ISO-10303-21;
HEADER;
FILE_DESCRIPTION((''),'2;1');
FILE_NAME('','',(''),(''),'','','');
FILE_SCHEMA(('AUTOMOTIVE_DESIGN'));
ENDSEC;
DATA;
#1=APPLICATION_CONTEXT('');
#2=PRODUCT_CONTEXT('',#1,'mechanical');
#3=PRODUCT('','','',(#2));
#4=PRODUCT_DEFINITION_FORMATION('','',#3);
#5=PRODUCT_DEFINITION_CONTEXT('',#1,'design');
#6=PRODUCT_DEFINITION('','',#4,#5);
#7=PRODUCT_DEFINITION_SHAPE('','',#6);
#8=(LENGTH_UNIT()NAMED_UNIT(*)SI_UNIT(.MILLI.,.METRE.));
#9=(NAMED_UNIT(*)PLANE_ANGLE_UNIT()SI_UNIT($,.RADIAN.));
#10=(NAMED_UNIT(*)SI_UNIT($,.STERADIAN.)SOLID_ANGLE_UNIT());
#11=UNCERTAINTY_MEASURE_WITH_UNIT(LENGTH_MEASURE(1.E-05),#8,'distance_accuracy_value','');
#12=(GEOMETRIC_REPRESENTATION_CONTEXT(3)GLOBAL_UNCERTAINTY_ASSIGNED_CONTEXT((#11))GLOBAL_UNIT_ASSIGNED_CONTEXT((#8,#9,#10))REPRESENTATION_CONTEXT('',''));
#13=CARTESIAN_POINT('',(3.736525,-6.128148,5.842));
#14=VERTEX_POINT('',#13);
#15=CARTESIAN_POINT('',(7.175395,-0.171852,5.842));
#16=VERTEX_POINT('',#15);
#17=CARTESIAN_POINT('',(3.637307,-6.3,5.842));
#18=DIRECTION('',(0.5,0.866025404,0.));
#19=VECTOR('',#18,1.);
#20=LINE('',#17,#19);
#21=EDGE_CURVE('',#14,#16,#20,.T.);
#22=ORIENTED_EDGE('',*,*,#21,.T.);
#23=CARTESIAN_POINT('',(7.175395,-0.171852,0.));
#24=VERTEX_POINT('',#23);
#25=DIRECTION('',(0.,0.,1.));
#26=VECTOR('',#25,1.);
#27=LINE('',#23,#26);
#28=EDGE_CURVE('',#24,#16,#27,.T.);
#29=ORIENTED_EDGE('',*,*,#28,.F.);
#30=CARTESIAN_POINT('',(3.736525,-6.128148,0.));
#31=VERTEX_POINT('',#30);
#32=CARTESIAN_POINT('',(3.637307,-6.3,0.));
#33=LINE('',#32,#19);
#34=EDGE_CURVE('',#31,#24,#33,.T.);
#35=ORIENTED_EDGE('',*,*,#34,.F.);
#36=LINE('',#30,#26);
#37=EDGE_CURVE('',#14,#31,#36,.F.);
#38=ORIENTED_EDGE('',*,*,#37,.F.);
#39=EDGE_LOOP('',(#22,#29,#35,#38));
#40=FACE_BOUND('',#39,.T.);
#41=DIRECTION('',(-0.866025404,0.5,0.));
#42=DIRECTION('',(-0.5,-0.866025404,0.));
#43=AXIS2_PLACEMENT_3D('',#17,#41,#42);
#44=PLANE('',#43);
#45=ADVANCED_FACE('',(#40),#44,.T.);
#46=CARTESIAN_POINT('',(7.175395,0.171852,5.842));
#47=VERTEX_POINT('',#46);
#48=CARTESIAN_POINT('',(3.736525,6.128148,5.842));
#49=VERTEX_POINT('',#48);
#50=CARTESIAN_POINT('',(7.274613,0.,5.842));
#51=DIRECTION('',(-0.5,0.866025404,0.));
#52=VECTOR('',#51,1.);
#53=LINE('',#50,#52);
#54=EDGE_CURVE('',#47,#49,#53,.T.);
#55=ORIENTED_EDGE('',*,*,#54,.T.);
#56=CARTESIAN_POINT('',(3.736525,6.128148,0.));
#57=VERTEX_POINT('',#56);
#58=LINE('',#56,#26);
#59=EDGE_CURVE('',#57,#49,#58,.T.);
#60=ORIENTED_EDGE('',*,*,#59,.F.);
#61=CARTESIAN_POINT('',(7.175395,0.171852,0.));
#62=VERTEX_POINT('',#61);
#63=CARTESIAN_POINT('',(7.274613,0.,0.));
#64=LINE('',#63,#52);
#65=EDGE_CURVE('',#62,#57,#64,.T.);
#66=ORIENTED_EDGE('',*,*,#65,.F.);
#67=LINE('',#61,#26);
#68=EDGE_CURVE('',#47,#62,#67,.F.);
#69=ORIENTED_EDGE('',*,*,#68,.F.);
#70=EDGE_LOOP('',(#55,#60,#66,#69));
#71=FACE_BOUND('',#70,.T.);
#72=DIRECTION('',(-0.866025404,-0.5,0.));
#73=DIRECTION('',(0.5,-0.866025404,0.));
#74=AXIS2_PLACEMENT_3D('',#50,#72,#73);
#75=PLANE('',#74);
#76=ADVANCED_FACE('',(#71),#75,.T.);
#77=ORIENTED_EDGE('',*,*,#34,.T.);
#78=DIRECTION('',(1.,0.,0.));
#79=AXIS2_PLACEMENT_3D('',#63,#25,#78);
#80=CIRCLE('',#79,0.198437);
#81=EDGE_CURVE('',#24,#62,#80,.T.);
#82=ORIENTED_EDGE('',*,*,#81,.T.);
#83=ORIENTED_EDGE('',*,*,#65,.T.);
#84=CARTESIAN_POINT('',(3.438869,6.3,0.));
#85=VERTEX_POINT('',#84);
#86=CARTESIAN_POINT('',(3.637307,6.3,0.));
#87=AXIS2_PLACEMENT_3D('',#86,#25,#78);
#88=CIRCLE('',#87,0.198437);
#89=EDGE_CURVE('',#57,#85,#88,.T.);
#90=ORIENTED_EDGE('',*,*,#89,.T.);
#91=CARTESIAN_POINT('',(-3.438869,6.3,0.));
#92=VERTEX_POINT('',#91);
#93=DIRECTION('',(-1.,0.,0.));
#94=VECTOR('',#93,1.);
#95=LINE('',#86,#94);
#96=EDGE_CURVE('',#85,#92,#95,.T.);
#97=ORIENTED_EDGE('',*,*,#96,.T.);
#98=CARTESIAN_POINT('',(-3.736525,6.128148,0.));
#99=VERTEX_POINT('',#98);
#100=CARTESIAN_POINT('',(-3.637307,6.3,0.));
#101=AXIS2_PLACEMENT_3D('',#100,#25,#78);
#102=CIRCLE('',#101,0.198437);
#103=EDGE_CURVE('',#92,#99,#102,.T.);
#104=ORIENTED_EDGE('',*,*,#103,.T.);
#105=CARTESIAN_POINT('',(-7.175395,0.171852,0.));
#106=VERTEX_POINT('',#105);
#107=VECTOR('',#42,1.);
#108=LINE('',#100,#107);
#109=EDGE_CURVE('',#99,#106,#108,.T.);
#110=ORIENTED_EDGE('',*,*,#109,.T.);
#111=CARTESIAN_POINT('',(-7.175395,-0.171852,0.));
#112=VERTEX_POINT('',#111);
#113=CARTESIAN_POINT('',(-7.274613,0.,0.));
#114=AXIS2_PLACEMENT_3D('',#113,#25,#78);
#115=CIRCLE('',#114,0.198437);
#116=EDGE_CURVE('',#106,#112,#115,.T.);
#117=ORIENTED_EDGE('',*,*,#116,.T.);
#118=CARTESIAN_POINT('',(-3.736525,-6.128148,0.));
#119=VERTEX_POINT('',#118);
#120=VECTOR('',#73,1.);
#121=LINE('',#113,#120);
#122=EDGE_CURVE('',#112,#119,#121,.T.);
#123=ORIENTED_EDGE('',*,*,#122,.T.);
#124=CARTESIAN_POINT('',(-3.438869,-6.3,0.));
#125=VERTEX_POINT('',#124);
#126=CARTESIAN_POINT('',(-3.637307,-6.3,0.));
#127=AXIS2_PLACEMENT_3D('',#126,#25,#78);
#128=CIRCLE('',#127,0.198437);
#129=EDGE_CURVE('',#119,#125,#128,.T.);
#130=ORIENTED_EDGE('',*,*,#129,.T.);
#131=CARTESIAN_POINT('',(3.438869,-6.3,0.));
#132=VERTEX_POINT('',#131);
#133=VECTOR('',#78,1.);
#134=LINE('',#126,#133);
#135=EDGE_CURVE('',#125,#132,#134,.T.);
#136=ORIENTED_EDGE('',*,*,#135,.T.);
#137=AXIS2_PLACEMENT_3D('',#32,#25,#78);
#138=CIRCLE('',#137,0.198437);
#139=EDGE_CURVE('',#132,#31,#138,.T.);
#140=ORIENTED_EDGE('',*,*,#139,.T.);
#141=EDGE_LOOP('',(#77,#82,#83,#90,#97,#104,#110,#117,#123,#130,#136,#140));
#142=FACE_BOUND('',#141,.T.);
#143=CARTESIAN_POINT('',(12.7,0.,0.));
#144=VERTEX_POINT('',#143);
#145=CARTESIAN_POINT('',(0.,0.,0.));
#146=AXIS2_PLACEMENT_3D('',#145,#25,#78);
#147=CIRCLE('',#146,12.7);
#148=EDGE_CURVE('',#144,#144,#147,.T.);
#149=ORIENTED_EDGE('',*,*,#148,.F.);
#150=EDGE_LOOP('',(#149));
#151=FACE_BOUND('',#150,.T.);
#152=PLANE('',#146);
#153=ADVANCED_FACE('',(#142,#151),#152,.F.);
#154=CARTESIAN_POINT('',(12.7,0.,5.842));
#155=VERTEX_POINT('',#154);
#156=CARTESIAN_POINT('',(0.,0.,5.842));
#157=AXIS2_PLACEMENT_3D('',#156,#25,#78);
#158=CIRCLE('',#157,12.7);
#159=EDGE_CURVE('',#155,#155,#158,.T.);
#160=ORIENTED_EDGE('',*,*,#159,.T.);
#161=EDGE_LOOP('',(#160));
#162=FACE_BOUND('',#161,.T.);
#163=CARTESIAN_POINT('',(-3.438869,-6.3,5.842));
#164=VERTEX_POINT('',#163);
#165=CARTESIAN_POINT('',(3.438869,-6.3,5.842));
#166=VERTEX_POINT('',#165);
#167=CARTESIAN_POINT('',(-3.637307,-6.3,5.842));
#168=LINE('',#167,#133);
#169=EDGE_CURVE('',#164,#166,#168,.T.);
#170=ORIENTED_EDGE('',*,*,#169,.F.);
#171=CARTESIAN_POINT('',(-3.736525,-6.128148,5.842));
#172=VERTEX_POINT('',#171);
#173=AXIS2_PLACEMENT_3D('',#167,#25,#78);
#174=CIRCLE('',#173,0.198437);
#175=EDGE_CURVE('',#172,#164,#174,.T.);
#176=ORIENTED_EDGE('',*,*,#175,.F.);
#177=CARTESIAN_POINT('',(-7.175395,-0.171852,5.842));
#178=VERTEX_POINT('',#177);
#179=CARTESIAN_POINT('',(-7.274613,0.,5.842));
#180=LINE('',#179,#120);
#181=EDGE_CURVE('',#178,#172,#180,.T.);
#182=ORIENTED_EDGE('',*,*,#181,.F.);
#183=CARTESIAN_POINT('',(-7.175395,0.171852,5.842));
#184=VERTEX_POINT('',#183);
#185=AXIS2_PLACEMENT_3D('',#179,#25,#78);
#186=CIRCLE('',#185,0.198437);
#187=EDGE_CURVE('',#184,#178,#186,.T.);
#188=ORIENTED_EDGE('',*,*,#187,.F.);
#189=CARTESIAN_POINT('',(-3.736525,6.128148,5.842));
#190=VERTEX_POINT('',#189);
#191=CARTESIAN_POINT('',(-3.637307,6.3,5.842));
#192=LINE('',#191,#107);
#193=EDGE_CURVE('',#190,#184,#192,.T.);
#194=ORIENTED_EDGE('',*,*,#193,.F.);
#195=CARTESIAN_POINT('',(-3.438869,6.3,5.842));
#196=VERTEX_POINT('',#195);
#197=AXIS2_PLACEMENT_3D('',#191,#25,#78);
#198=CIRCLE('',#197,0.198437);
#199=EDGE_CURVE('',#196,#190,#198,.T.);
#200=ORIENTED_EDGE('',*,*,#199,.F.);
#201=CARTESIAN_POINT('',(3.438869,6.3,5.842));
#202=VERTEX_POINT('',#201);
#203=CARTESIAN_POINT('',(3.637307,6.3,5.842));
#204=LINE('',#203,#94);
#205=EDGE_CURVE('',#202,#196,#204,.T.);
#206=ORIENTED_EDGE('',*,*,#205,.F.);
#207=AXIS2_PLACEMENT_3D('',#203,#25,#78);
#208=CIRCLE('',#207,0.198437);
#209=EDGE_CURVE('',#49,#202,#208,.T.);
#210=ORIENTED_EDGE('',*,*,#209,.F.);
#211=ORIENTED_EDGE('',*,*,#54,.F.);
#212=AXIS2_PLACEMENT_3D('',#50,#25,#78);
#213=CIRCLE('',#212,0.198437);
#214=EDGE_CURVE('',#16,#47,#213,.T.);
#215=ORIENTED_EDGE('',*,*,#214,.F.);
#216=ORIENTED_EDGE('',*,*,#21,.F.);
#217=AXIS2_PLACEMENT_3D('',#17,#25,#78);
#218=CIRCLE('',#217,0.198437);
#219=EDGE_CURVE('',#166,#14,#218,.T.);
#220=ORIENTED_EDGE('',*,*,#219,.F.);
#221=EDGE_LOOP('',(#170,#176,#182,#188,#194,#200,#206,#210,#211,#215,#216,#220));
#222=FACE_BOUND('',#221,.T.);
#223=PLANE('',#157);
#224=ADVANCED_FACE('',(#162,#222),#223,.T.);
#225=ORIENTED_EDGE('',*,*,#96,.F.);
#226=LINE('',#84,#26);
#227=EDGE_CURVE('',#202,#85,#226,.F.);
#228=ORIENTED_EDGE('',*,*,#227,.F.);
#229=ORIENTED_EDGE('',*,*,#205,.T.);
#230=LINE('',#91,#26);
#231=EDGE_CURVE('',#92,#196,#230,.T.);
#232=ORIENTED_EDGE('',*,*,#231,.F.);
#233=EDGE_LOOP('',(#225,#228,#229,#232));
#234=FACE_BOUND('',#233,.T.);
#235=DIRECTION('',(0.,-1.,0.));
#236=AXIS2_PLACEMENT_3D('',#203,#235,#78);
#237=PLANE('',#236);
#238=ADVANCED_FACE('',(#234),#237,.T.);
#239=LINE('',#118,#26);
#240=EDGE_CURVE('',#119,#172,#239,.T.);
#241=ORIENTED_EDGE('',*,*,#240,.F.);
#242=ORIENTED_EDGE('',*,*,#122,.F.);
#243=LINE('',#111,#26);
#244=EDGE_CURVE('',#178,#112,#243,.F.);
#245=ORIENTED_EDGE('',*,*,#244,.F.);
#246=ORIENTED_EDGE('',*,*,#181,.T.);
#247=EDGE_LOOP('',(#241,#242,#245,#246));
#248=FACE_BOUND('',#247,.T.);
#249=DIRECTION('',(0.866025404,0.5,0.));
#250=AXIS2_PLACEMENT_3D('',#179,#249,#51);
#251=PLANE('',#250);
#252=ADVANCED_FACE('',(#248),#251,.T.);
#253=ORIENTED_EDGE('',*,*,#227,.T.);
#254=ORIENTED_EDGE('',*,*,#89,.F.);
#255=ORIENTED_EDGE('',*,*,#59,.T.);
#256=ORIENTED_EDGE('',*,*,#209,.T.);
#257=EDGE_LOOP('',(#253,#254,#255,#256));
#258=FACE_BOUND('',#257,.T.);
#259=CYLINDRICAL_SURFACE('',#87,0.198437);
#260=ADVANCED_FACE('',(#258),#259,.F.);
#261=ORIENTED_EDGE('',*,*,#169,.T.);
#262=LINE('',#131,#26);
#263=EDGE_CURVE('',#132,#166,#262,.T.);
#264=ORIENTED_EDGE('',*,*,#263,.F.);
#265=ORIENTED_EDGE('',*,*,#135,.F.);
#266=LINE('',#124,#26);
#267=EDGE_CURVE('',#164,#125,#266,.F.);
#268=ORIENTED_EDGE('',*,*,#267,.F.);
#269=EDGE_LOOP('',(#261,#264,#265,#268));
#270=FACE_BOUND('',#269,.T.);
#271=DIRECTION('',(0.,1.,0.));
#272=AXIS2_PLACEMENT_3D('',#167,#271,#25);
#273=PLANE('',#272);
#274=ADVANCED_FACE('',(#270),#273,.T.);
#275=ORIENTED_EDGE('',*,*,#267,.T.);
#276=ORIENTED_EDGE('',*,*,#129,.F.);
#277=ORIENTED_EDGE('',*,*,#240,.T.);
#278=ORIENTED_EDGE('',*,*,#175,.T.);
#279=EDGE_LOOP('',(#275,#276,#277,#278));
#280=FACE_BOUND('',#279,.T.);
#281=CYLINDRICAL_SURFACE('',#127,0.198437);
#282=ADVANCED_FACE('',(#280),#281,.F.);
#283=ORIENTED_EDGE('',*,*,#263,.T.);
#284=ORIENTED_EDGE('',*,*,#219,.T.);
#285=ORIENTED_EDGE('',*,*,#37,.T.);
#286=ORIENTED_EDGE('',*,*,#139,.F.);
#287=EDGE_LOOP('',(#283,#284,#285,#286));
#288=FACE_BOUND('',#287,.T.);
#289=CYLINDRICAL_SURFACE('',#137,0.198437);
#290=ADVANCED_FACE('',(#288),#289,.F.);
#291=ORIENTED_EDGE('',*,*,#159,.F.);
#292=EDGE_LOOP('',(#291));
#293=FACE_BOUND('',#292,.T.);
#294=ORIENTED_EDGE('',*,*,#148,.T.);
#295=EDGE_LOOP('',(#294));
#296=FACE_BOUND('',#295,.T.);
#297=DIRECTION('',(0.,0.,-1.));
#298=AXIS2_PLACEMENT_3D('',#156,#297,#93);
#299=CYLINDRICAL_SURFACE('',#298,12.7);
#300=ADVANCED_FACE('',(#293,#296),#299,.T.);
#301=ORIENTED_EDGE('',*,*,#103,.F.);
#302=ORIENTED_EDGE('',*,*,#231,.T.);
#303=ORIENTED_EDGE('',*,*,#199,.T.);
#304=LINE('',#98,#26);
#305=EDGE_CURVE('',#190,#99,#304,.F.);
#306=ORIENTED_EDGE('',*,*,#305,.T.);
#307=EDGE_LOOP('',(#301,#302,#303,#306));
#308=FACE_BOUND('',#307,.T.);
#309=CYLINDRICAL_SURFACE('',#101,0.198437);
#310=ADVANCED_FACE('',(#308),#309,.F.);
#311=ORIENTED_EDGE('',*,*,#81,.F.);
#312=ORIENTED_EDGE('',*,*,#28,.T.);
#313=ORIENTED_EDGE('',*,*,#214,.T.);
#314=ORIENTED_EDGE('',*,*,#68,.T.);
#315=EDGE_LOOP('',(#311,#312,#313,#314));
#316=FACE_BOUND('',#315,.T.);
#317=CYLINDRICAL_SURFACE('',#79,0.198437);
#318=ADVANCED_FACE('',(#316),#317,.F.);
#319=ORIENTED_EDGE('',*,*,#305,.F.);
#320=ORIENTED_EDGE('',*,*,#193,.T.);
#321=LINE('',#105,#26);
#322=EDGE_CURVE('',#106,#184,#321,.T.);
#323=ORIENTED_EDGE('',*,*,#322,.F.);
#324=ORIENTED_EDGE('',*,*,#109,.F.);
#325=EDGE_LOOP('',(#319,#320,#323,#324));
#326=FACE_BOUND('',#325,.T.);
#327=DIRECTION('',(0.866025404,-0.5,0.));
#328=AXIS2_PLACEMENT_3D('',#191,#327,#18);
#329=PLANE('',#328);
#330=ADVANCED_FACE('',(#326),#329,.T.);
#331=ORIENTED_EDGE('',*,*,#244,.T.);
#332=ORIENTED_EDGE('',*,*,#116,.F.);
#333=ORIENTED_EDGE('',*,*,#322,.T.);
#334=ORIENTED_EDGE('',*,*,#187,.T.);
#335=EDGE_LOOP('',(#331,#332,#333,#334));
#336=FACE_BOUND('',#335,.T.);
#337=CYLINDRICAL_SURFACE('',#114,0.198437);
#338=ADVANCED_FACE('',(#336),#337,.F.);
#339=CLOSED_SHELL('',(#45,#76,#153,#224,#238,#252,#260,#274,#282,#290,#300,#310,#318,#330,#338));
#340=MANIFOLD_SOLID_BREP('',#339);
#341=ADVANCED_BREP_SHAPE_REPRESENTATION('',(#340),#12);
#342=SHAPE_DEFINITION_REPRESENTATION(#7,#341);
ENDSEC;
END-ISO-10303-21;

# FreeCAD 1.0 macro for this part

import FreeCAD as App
import Part
import Sketcher

V = App.Vector
Q = App.Units.Quantity

doc = App.newDocument("Part")
body = doc.addObject("PartDesign::Body", "Body")

# Sketch on XY plane
sketch1 = doc.addObject("Sketcher::SketchObject", "Sketch")
body.addObject(sketch1)
sketch1.AttachmentSupport = (doc.XY_Plane, [""])
sketch1.MapMode = "FlatFace"
sketch1.addGeometry([
    Part.Circle(V(0, 0, 0), V(0, 0, 1), 13),  # 0
    Part.LineSegment(V(-4, -6, 0), V(-7, 0, 0)),  # 1
    Part.LineSegment(V(-7, 0, 0), V(-4, 6, 0)),  # 2
    Part.LineSegment(V(-4, 6, 0), V(4, 6, 0)),  # 3
    Part.LineSegment(V(4, 6, 0), V(7, 0, 0)),  # 4
    Part.LineSegment(V(7, 0, 0), V(4, -6, 0)),  # 5
    Part.LineSegment(V(4, -6, 0), V(-4, -6, 0)),  # 6
], False)
sketch1.addConstraint([
    Sketcher.Constraint("Coincident", 1, 2, 2, 1),
    Sketcher.Constraint("Coincident", 2, 2, 3, 1),
    Sketcher.Constraint("Coincident", 3, 2, 4, 1),
    Sketcher.Constraint("Coincident", 4, 2, 5, 1),
    Sketcher.Constraint("Coincident", 5, 2, 6, 1),
    Sketcher.Constraint("Coincident", 6, 2, 1, 1),
    Sketcher.Constraint("Horizontal", 3),
    Sketcher.Constraint("Horizontal", 6),
    Sketcher.Constraint("Coincident", 0, 3, -1, 1),
    Sketcher.Constraint("Symmetric", 1, 2, 4, 2, -1, 1),
    Sketcher.Constraint("Symmetric", 2, 2, 5, 2, -1, 1),
    Sketcher.Constraint("PointOnObject", 1, 2, -1),
    Sketcher.Constraint("Parallel", 1, 4),
    Sketcher.Constraint("Vertical", 3, 2, 5, 2),
    Sketcher.Constraint("Diameter", 0, Q("1 in")),
    Sketcher.Constraint("Angle", 1, Q("120 deg")),
    Sketcher.Constraint("DistanceY", -1, 1, 2, 2, Q("6.3 mm")),
    Sketcher.Constraint("DistanceX", 3, 1, 3, 2, Q("7.274613 mm")),
])
pad1 = doc.addObject("PartDesign::Pad", "Pad")
body.addObject(pad1)
pad1.Profile = sketch1
pad1.Length = Q("0.23 in")

# Sketch on XY plane
sketch2 = doc.addObject("Sketcher::SketchObject", "Sketch001")
body.addObject(sketch2)
sketch2.AttachmentSupport = (doc.XY_Plane, [""])
sketch2.MapMode = "FlatFace"
sketch2.AttachmentOffset = App.Placement(V(0, 0, 0.23 * 25.4), App.Rotation())
sketch2.addGeometry([
    Part.Circle(V(3.64, 6.3, 0), V(0, 0, 1), 0.2),  # 0
    Part.Circle(V(-3.64, 6.3, 0), V(0, 0, 1), 0.2),  # 1
    Part.Circle(V(-7.27, 0, 0), V(0, 0, 1), 0.2),  # 2
    Part.Circle(V(-3.64, -6.3, 0), V(0, 0, 1), 0.2),  # 3
    Part.Circle(V(3.64, -6.3, 0), V(0, 0, 1), 0.2),  # 4
    Part.Circle(V(7.27, 0, 0), V(0, 0, 1), 0.2),  # 5
], False)
sketch2.addConstraint([
    Sketcher.Constraint("Equal", 0, 1),
    Sketcher.Constraint("Equal", 1, 2),
    Sketcher.Constraint("Equal", 2, 3),
    Sketcher.Constraint("Equal", 3, 4),
    Sketcher.Constraint("Equal", 4, 5),
    Sketcher.Constraint("Symmetric", 0, 3, 3, 3, -1, 1),
    Sketcher.Constraint("Symmetric", 1, 3, 4, 3, -1, 1),
    Sketcher.Constraint("Symmetric", 2, 3, 5, 3, -1, 1),
    Sketcher.Constraint("Symmetric", 0, 3, 1, 3, -2),
    Sketcher.Constraint("PointOnObject", 2, 3, -1),
    Sketcher.Constraint("Diameter", 0, Q("0.015625 in")),
    Sketcher.Constraint("DistanceY", -1, 1, 0, 3, Q("6.3 mm")),
    Sketcher.Constraint("DistanceX", 2, 3, 0, 3, Q("10.91192 mm")),
    Sketcher.Constraint("DistanceX", -1, 1, 0, 3, Q("3.637307 mm")),
])
pocket1 = doc.addObject("PartDesign::Pocket", "Pocket")
body.addObject(pocket1)
pocket1.Profile = sketch2
pocket1.Type = "ThroughAll"

doc.recompute()
